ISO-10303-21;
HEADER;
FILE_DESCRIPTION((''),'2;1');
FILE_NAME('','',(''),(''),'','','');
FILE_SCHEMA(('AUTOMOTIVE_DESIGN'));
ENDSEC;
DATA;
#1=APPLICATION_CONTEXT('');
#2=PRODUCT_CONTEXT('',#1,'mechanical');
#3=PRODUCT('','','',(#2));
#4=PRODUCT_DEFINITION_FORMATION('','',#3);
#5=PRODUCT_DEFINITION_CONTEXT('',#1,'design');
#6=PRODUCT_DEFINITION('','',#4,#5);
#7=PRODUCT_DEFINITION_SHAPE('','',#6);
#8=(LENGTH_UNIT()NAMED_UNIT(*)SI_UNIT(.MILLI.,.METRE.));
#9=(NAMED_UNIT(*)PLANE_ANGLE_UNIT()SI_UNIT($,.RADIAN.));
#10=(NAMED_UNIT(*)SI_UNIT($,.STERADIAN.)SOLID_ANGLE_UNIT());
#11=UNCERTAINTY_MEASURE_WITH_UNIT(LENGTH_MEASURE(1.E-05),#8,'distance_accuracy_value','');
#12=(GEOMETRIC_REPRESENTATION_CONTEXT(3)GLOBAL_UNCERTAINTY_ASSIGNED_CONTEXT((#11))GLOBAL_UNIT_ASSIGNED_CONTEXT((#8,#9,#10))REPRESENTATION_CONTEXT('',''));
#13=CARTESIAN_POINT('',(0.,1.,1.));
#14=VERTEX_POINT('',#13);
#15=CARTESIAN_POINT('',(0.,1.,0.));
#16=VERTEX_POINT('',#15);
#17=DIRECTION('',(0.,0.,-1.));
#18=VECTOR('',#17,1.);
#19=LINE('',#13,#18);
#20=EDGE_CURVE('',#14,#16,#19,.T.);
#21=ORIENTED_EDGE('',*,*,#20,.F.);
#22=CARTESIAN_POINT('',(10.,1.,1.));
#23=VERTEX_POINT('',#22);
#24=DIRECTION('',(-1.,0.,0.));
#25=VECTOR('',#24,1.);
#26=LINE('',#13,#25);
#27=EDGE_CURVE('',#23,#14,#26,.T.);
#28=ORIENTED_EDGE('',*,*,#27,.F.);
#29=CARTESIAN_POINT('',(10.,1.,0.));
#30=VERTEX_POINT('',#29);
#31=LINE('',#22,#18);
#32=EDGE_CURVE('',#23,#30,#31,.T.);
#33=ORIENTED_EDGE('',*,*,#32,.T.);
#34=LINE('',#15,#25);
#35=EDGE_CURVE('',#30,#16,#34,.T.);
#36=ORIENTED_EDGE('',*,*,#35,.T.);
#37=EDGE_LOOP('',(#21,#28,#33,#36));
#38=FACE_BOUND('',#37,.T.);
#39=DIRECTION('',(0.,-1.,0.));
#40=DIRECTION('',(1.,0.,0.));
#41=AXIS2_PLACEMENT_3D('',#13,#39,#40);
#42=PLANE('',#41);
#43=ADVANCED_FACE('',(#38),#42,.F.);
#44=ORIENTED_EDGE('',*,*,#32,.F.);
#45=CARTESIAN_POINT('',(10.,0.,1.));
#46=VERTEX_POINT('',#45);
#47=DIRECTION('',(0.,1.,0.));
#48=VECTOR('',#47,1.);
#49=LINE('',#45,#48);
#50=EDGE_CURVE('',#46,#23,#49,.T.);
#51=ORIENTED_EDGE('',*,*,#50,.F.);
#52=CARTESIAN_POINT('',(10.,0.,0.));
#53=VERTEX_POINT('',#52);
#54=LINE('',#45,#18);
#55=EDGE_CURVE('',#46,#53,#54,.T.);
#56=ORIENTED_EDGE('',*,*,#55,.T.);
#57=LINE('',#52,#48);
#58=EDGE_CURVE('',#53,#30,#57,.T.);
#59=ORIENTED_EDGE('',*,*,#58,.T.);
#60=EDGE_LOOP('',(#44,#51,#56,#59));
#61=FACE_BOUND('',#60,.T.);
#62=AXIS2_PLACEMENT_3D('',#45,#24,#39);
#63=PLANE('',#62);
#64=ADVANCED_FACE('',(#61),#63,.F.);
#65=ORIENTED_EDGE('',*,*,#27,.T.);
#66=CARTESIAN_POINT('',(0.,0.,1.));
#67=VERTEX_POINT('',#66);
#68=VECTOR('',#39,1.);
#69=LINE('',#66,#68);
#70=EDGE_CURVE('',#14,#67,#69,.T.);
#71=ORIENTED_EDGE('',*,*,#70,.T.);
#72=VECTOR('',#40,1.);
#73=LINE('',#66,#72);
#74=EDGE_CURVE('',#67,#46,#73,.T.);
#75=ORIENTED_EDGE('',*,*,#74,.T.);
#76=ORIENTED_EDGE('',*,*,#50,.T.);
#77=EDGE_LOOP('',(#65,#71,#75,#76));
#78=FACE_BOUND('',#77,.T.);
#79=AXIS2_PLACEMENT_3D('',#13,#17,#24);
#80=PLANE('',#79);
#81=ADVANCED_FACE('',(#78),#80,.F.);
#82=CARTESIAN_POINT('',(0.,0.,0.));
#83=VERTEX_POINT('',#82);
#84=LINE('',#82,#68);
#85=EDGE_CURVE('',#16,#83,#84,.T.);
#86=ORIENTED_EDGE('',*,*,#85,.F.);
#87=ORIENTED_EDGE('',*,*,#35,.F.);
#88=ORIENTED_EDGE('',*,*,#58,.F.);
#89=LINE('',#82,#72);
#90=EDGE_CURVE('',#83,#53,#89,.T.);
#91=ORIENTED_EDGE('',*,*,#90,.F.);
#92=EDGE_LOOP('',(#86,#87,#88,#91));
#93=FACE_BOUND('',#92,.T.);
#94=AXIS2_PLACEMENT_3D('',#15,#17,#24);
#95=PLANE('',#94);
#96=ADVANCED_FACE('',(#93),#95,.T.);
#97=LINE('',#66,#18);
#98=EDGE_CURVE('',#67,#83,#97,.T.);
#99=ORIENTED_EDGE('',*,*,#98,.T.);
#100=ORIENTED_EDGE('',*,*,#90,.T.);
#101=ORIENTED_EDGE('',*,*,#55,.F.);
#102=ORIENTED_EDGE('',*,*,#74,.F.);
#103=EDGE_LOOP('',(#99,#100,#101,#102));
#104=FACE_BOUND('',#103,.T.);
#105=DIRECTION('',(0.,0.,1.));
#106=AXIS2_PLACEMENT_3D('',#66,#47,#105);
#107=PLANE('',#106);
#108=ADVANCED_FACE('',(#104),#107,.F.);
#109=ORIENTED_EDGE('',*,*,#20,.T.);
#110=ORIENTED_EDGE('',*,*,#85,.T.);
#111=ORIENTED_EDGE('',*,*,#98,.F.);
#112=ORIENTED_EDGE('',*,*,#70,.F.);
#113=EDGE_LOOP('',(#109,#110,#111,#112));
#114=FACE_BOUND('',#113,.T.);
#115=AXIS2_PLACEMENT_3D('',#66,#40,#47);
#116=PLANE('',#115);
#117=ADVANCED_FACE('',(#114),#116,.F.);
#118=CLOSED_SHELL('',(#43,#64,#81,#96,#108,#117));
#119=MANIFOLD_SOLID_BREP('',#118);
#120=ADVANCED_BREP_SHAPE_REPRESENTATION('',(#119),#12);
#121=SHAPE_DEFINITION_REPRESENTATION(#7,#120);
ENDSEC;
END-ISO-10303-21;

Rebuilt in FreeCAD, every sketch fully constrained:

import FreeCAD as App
import Part
import Sketcher


def add_polygon(sketch, points):
    """Adds a closed chain of lines whose ends are joined by coincident constraints."""
    first, n = sketch.GeometryCount, len(points)
    for a, b in zip(points, points[1:] + points[:1]):
        sketch.addGeometry(Part.LineSegment(App.Vector(*a, 0), App.Vector(*b, 0)), False)
    for i in range(n):
        sketch.addConstraint(Sketcher.Constraint("Coincident", first + i, 2, first + (i + 1) % n, 1))

doc = App.newDocument("Part")
body = doc.addObject("PartDesign::Body", "Body")

# Sketch on XY plane
sketch1 = doc.addObject("Sketcher::SketchObject", "Sketch")
body.addObject(sketch1)
sketch1.AttachmentSupport = (doc.XY_Plane, [""])
sketch1.MapMode = "FlatFace"
add_polygon(sketch1, [(0, 1), (0, 0), (10, 0), (10, 1)])  # lines 0-3
sketch1.addConstraint([
    Sketcher.Constraint("Vertical", 0),
    Sketcher.Constraint("Horizontal", 1),
    Sketcher.Constraint("Vertical", 2),
    Sketcher.Constraint("Horizontal", 3),
    Sketcher.Constraint("Coincident", 0, 2, -1, 1),
    Sketcher.Constraint("DistanceX", 1, 1, 1, 2, 10.0),
    Sketcher.Constraint("DistanceY", 0, 2, 0, 1, 1.0),
])
pad1 = doc.addObject("PartDesign::Pad", "Pad")
body.addObject(pad1)
pad1.Profile = sketch1
pad1.Length = 1

doc.recompute()
